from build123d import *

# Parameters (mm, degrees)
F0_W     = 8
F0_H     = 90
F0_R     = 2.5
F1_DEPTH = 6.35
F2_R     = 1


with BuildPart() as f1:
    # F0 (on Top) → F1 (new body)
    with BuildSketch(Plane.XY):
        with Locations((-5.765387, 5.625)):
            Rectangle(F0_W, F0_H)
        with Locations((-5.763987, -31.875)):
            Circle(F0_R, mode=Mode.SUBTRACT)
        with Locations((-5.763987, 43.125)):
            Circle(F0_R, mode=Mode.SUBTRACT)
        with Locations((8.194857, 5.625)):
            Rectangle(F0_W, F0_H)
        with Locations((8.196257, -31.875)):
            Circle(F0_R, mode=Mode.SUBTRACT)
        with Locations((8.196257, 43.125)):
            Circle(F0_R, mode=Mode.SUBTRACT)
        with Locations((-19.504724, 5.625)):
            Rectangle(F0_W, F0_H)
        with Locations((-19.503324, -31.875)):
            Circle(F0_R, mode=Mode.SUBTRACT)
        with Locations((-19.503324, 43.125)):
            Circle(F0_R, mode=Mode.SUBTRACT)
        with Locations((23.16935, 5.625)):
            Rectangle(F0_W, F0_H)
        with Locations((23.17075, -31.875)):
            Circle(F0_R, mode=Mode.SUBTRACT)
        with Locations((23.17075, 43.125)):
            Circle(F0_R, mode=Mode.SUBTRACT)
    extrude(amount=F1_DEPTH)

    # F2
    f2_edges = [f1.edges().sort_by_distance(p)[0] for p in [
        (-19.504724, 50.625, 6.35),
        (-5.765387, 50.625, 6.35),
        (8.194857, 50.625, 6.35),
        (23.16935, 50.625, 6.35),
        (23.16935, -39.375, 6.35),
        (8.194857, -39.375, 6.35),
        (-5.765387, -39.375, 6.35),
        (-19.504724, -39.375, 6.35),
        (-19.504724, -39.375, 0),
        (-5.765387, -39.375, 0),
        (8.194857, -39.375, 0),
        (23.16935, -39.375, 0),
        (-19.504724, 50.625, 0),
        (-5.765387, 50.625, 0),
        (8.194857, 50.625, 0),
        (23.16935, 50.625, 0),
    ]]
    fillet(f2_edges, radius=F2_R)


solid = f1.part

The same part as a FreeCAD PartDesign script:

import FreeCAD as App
import Part
import Sketcher
Q = App.Units.Quantity


def edges_at(feature, points):
    """Names of the edges that pass closest to the given points."""
    edges = feature.Shape.Edges
    near = lambda p: min(range(len(edges)), key=lambda i: edges[i].distToShape(Part.Vertex(*p))[0])
    return sorted({f"Edge{near(p) + 1}" for p in points})


def add_polygon(sketch, points):
    """Adds a closed chain of lines whose ends are joined by coincident constraints."""
    first, n = sketch.GeometryCount, len(points)
    for a, b in zip(points, points[1:] + points[:1]):
        sketch.addGeometry(Part.LineSegment(App.Vector(*a, 0), App.Vector(*b, 0)), False)
    for i in range(n):
        sketch.addConstraint(Sketcher.Constraint("Coincident", first + i, 2, first + (i + 1) % n, 1))

doc = App.newDocument("Part")
body = doc.addObject("PartDesign::Body", "Body")
body.AllowCompound = True

# Sketch on XY plane
sketch1 = body.newObject("Sketcher::SketchObject", "Sketch")
sketch1.AttachmentSupport = (doc.getObject("XY_Plane"), [""])
sketch1.MapMode = "FlatFace"
add_polygon(sketch1, [(-9.765387, 50.625), (-9.765387, -39.375), (-1.765387, -39.375), (-1.765387, 50.625)])  # lines 0-3
sketch1.addGeometry(Part.Circle(App.Vector(-5.763987, -31.875, 0), App.Vector(0, 0, 1), 2.5), False)  # 4
sketch1.addGeometry(Part.Circle(App.Vector(-5.763987, 43.125, 0), App.Vector(0, 0, 1), 2.5), False)  # 5
add_polygon(sketch1, [(4.194857, 50.625), (4.194857, -39.375), (12.194857, -39.375), (12.194857, 50.625)])  # lines 6-9
sketch1.addGeometry(Part.Circle(App.Vector(8.196257, -31.875, 0), App.Vector(0, 0, 1), 2.5), False)  # 10
sketch1.addGeometry(Part.Circle(App.Vector(8.196257, 43.125, 0), App.Vector(0, 0, 1), 2.5), False)  # 11
add_polygon(sketch1, [(-23.504724, 50.625), (-23.504724, -39.375), (-15.504724, -39.375), (-15.504724, 50.625)])  # lines 12-15
sketch1.addGeometry(Part.Circle(App.Vector(-19.503324, -31.875, 0), App.Vector(0, 0, 1), 2.5), False)  # 16
sketch1.addGeometry(Part.Circle(App.Vector(-19.503324, 43.125, 0), App.Vector(0, 0, 1), 2.5), False)  # 17
add_polygon(sketch1, [(19.16935, 50.625), (19.16935, -39.375), (27.16935, -39.375), (27.16935, 50.625)])  # lines 18-21
sketch1.addGeometry(Part.Circle(App.Vector(23.17075, -31.875, 0), App.Vector(0, 0, 1), 2.5), False)  # 22
sketch1.addGeometry(Part.Circle(App.Vector(23.17075, 43.125, 0), App.Vector(0, 0, 1), 2.5), False)  # 23
sketch1.addConstraint(Sketcher.Constraint("Vertical", 0))
sketch1.addConstraint(Sketcher.Constraint("Horizontal", 1))
sketch1.addConstraint(Sketcher.Constraint("Vertical", 2))
sketch1.addConstraint(Sketcher.Constraint("Horizontal", 3))
sketch1.addConstraint(Sketcher.Constraint("Vertical", 6))
sketch1.addConstraint(Sketcher.Constraint("Horizontal", 7))
sketch1.addConstraint(Sketcher.Constraint("Vertical", 8))
sketch1.addConstraint(Sketcher.Constraint("Horizontal", 9))
sketch1.addConstraint(Sketcher.Constraint("Vertical", 12))
sketch1.addConstraint(Sketcher.Constraint("Horizontal", 13))
sketch1.addConstraint(Sketcher.Constraint("Vertical", 14))
sketch1.addConstraint(Sketcher.Constraint("Horizontal", 15))
sketch1.addConstraint(Sketcher.Constraint("Vertical", 18))
sketch1.addConstraint(Sketcher.Constraint("Horizontal", 19))
sketch1.addConstraint(Sketcher.Constraint("Vertical", 20))
sketch1.addConstraint(Sketcher.Constraint("Horizontal", 21))
sketch1.addConstraint(Sketcher.Constraint("Equal", 4, 5))
sketch1.addConstraint(Sketcher.Constraint("Equal", 5, 10))
sketch1.addConstraint(Sketcher.Constraint("Equal", 10, 11))
sketch1.addConstraint(Sketcher.Constraint("Equal", 11, 16))
sketch1.addConstraint(Sketcher.Constraint("Equal", 16, 17))
sketch1.addConstraint(Sketcher.Constraint("Equal", 17, 22))
sketch1.addConstraint(Sketcher.Constraint("Equal", 22, 23))
sketch1.addConstraint(Sketcher.Constraint("Horizontal", 4, 3, 10, 3))
sketch1.addConstraint(Sketcher.Constraint("Horizontal", 5, 3, 11, 3))
sketch1.addConstraint(Sketcher.Constraint("Horizontal", 10, 3, 16, 3))
sketch1.addConstraint(Sketcher.Constraint("Horizontal", 11, 3, 17, 3))
sketch1.addConstraint(Sketcher.Constraint("Horizontal", 16, 3, 22, 3))
sketch1.addConstraint(Sketcher.Constraint("Horizontal", 17, 3, 23, 3))
sketch1.addConstraint(Sketcher.Constraint("Horizontal", 1, 2, 6, 2))
sketch1.addConstraint(Sketcher.Constraint("Horizontal", 3, 2, 8, 2))
sketch1.addConstraint(Sketcher.Constraint("Horizontal", 7, 2, 12, 2))
sketch1.addConstraint(Sketcher.Constraint("Horizontal", 9, 2, 14, 2))
sketch1.addConstraint(Sketcher.Constraint("Horizontal", 13, 2, 18, 2))
sketch1.addConstraint(Sketcher.Constraint("Horizontal", 15, 2, 20, 2))
sketch1.addConstraint(Sketcher.Constraint("Vertical", 4, 3, 5, 3))
sketch1.addConstraint(Sketcher.Constraint("Vertical", 10, 3, 11, 3))
sketch1.addConstraint(Sketcher.Constraint("Vertical", 16, 3, 17, 3))
sketch1.addConstraint(Sketcher.Constraint("Vertical", 22, 3, 23, 3))
sketch1.addConstraint(Sketcher.Constraint("Equal", 3, 7))
sketch1.addConstraint(Sketcher.Constraint("Equal", 9, 13))
sketch1.addConstraint(Sketcher.Constraint("Equal", 15, 19))
sketch1.addConstraint(Sketcher.Constraint("Diameter", 4, Q("5 mm")))
sketch1.addConstraint(Sketcher.Constraint("DistanceX", 1, 1, 1, 2, Q("8 mm")))
sketch1.addConstraint(Sketcher.Constraint("DistanceY", 0, 2, 0, 1, Q("90 mm")))
sketch1.addConstraint(Sketcher.Constraint("DistanceY", 4, 3, 5, 3, Q("75 mm")))
sketch1.addConstraint(Sketcher.Constraint("DistanceY", 0, 2, 4, 3, Q("7.5 mm")))
sketch1.addConstraint(Sketcher.Constraint("DistanceY", 4, 3, -1, 1, Q("31.875 mm")))
sketch1.addConstraint(Sketcher.Constraint("DistanceX", 0, 2, 4, 3, Q("4.0014 mm")))
sketch1.addConstraint(Sketcher.Constraint("DistanceX", 6, 2, 10, 3, Q("4.0014 mm")))
sketch1.addConstraint(Sketcher.Constraint("DistanceX", 12, 2, 16, 3, Q("4.0014 mm")))
sketch1.addConstraint(Sketcher.Constraint("DistanceX", 18, 2, 22, 3, Q("4.0014 mm")))
sketch1.addConstraint(Sketcher.Constraint("DistanceX", -1, 1, 22, 3, Q("23.17075 mm")))
sketch1.addConstraint(Sketcher.Constraint("DistanceX", 16, 3, 10, 3, Q("27.699581 mm")))
sketch1.addConstraint(Sketcher.Constraint("DistanceX", 4, 3, -1, 1, Q("5.763987 mm")))
sketch1.addConstraint(Sketcher.Constraint("DistanceX", -1, 1, 10, 3, Q("8.196257 mm")))
pad1 = body.newObject("PartDesign::Pad", "Pad")
pad1.Profile = sketch1
pad1.Length = 6.35
doc.recompute()

fillet = body.newObject("PartDesign::Fillet", "Fillet")
fillet.Base = (pad1, edges_at(pad1, [
    (-19.505, 50.625, 6.35),
    (-5.765, 50.625, 6.35),
    (8.195, 50.625, 6.35),
    (23.169, 50.625, 6.35),
    (23.169, -39.375, 6.35),
    (8.195, -39.375, 6.35),
    (-5.765, -39.375, 6.35),
    (-19.505, -39.375, 6.35),
    (-19.505, -39.375, 0),
    (-5.765, -39.375, 0),
    (8.195, -39.375, 0),
    (23.169, -39.375, 0),
    (-19.505, 50.625, 0),
    (-5.765, 50.625, 0),
    (8.195, 50.625, 0),
    (23.169, 50.625, 0),
]))
fillet.Radius = 1

doc.recompute()
